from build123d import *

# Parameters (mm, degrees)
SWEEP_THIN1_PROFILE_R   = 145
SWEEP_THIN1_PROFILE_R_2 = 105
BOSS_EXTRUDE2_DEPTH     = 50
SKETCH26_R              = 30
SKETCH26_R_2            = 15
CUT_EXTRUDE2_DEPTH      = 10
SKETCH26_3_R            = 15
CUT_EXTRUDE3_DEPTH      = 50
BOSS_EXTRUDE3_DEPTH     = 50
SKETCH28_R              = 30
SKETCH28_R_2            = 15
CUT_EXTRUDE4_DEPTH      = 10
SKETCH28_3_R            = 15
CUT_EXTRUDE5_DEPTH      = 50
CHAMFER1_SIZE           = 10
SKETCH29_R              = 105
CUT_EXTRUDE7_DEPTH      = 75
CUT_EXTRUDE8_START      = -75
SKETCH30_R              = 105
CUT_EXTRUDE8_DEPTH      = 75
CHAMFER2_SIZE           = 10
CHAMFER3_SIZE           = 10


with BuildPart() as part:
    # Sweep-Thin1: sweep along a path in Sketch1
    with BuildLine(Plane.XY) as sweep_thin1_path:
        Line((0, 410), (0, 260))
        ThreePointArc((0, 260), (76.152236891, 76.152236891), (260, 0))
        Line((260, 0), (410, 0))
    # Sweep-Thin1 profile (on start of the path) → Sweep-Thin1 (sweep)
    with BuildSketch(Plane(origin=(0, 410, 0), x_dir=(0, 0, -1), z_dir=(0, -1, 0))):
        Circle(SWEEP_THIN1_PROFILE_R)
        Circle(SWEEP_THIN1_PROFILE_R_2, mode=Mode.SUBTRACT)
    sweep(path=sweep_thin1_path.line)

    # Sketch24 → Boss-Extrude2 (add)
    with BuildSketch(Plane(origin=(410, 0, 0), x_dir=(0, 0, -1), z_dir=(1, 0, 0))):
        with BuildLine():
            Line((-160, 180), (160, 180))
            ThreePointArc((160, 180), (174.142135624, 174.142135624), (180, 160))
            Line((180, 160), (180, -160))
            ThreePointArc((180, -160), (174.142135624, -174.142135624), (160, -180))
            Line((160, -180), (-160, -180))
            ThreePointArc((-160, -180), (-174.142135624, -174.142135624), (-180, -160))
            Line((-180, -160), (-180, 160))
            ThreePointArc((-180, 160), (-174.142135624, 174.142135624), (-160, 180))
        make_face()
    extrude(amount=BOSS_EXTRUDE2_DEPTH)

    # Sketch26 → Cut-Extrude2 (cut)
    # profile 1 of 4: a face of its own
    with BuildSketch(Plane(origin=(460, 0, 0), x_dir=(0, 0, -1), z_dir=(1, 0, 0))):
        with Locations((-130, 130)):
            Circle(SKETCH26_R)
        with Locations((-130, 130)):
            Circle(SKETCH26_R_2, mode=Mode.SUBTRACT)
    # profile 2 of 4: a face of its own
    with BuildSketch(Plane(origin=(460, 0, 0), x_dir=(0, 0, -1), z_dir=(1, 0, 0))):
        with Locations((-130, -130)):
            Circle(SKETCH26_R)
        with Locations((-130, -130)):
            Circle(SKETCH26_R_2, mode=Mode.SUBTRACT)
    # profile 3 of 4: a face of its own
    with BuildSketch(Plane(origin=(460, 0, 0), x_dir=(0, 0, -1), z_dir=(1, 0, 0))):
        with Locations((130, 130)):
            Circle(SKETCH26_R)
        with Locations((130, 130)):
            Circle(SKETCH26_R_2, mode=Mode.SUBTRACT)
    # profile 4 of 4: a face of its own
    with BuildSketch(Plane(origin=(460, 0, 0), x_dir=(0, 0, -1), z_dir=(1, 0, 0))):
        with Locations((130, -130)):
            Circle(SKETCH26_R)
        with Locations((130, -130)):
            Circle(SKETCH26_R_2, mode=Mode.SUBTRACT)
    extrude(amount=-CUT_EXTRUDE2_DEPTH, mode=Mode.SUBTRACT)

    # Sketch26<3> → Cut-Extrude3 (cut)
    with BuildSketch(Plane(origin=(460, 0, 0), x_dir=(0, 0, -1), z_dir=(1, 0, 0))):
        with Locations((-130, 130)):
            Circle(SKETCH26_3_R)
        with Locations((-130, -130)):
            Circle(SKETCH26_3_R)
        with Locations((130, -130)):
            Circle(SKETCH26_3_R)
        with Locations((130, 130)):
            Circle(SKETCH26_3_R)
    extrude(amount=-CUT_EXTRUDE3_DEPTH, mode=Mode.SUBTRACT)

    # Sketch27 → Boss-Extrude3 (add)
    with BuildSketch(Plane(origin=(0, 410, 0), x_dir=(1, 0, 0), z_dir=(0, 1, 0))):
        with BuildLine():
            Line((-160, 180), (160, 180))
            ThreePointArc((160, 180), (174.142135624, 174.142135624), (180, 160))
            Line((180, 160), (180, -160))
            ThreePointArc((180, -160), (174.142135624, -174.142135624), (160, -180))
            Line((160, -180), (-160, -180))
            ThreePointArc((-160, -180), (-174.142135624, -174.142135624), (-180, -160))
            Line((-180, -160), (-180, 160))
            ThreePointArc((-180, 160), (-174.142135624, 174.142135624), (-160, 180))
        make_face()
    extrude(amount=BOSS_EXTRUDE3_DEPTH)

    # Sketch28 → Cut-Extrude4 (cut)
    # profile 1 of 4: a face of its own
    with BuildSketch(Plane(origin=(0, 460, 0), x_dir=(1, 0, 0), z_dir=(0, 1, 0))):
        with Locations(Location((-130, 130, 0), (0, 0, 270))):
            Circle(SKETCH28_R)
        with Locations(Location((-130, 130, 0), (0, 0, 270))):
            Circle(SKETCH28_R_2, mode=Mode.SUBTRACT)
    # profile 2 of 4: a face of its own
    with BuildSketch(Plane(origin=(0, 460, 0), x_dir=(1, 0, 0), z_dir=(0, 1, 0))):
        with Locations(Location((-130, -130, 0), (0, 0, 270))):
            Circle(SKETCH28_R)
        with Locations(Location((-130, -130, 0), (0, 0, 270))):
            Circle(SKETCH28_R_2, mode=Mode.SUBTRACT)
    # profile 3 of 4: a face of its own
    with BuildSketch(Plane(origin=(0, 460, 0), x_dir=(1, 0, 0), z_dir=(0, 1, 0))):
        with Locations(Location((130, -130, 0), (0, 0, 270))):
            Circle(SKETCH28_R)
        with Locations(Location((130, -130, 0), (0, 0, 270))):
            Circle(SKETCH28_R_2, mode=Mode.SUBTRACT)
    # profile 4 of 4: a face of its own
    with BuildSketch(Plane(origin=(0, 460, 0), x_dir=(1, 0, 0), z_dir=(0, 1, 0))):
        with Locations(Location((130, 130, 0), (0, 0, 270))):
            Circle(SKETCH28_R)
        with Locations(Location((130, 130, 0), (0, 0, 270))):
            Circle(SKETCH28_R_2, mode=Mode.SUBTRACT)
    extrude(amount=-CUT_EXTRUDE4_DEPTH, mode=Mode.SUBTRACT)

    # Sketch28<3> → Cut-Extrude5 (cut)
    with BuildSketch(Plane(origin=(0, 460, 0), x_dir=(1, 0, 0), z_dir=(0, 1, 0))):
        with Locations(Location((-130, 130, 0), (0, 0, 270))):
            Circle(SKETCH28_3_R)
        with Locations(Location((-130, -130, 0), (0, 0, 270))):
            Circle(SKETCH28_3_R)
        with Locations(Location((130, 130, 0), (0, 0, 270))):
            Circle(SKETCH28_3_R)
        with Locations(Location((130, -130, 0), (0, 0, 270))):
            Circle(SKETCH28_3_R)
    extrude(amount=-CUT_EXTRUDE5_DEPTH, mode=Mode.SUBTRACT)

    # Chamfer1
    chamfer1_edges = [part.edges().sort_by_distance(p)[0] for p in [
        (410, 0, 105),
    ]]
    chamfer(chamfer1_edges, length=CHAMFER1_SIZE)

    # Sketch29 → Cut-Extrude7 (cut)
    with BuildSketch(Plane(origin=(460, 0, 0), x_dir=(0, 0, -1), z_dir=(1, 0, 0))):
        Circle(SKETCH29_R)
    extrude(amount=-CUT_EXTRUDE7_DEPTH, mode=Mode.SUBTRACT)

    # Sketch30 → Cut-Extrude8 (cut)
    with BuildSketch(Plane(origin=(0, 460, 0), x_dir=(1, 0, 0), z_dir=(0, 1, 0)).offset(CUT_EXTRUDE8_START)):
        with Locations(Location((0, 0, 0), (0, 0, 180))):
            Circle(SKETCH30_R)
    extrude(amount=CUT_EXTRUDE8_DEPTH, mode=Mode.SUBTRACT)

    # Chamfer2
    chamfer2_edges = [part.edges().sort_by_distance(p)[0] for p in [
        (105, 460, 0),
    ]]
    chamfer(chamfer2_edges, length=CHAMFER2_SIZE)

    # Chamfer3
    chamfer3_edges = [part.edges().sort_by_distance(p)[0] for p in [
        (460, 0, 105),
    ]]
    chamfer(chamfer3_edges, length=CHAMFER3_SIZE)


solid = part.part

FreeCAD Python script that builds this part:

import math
import FreeCAD as App
import Part
import Sketcher
Q = App.Units.Quantity


def edges_at(feature, points):
    """Names of the edges that pass closest to the given points."""
    edges = feature.Shape.Edges
    near = lambda p: min(range(len(edges)), key=lambda i: edges[i].distToShape(Part.Vertex(*p))[0])
    return sorted({f"Edge{near(p) + 1}" for p in points})

doc = App.newDocument("Part")
body = doc.addObject("PartDesign::Body", "Body")

sketch1 = body.newObject("Sketcher::SketchObject", "Sketch")
sketch1.AttachmentSupport = (doc.getObject("XZ_Plane"), [""])
sketch1.MapMode = "FlatFace"
sketch1.AttachmentOffset = App.Placement(App.Vector(0, 0, -410), App.Rotation())
sketch1.addGeometry([
    Part.Circle(App.Vector(0, 0, 0), App.Vector(0, 0, 1), 145),
    Part.Circle(App.Vector(0, 0, 0), App.Vector(0, 0, 1), 105),
], False)
sketch1.addConstraint([
    Sketcher.Constraint("Coincident", 0, 3, -1, 1),
    Sketcher.Constraint("Coincident", 1, 3, -1, 1),
    Sketcher.Constraint("Diameter", 0, Q("290 mm")),
    Sketcher.Constraint("Diameter", 1, Q("210 mm")),
])

sketch2 = body.newObject("Sketcher::SketchObject", "Sketch001")
sketch2.AttachmentSupport = (doc.getObject("XY_Plane"), [""])
sketch2.MapMode = "FlatFace"
sketch2.addGeometry([
    Part.LineSegment(App.Vector(0, 410, 0), App.Vector(0, 260, 0)),
    Part.ArcOfCircle(Part.Circle(App.Vector(260, 260, 0), App.Vector(0, 0, 1), 260), math.radians(180), math.radians(270)),
    Part.LineSegment(App.Vector(260, 0, 0), App.Vector(410, 0, 0)),
], False)
sketch2.addConstraint([
    Sketcher.Constraint("Tangent", 0, 2, 1, 1),
    Sketcher.Constraint("Tangent", 1, 2, 2, 1),
    Sketcher.Constraint("Vertical", 0),
    Sketcher.Constraint("Horizontal", 2),
    Sketcher.Constraint("PointOnObject", 0, 1, -2),
    Sketcher.Constraint("PointOnObject", 1, 2, -1),
    Sketcher.Constraint("Equal", 2, 0),
    Sketcher.Constraint("Radius", 1, Q("260 mm")),
    Sketcher.Constraint("DistanceX", 2, 1, 2, 2, Q("150 mm")),
])
doc.recompute()

additivepipe = body.newObject("PartDesign::AdditivePipe", "AdditivePipe")
additivepipe.Profile = sketch1
additivepipe.Spine = (sketch2, ["Edge1", "Edge2", "Edge3"])

sketch3 = body.newObject("Sketcher::SketchObject", "Sketch002")
sketch3.AttachmentSupport = (doc.getObject("YZ_Plane"), [""])
sketch3.MapMode = "FlatFace"
sketch3.AttachmentOffset = App.Placement(App.Vector(0, 0, 410), App.Rotation())
sketch3.addGeometry([
    Part.LineSegment(App.Vector(180, -160, 0), App.Vector(180, 160, 0)),
    Part.ArcOfCircle(Part.Circle(App.Vector(160, 160, 0), App.Vector(0, 0, 1), 20), math.radians(0), math.radians(90)),
    Part.LineSegment(App.Vector(160, 180, 0), App.Vector(-160, 180, 0)),
    Part.ArcOfCircle(Part.Circle(App.Vector(-160, 160, 0), App.Vector(0, 0, 1), 20), math.radians(90), math.radians(180)),
    Part.LineSegment(App.Vector(-180, 160, 0), App.Vector(-180, -160, 0)),
    Part.ArcOfCircle(Part.Circle(App.Vector(-160, -160, 0), App.Vector(0, 0, 1), 20), math.radians(180), math.radians(270)),
    Part.LineSegment(App.Vector(-160, -180, 0), App.Vector(160, -180, 0)),
    Part.ArcOfCircle(Part.Circle(App.Vector(160, -160, 0), App.Vector(0, 0, 1), 20), math.radians(-90), math.radians(0)),
], False)
sketch3.addConstraint([
    Sketcher.Constraint("Tangent", 0, 2, 1, 1),
    Sketcher.Constraint("Tangent", 1, 2, 2, 1),
    Sketcher.Constraint("Tangent", 2, 2, 3, 1),
    Sketcher.Constraint("Tangent", 3, 2, 4, 1),
    Sketcher.Constraint("Tangent", 4, 2, 5, 1),
    Sketcher.Constraint("Tangent", 5, 2, 6, 1),
    Sketcher.Constraint("Tangent", 6, 2, 7, 1),
    Sketcher.Constraint("Tangent", 7, 2, 0, 1),
    Sketcher.Constraint("Vertical", 0),
    Sketcher.Constraint("Horizontal", 2),
    Sketcher.Constraint("Vertical", 4),
    Sketcher.Constraint("Horizontal", 6),
    Sketcher.Constraint("Equal", 1, 3),
    Sketcher.Constraint("Equal", 3, 5),
    Sketcher.Constraint("Equal", 5, 7),
    Sketcher.Constraint("Symmetric", 1, 3, 5, 3, -1, 1),
    Sketcher.Constraint("Equal", 6, 0),
    Sketcher.Constraint("Radius", 1, Q("20 mm")),
    Sketcher.Constraint("DistanceX", 2, 2, 2, 1, Q("320 mm")),
])
pad1 = body.newObject("PartDesign::Pad", "Pad")
pad1.Profile = sketch3
pad1.Length = 50

sketch4 = body.newObject("Sketcher::SketchObject", "Sketch003")
sketch4.AttachmentSupport = (doc.getObject("YZ_Plane"), [""])
sketch4.MapMode = "FlatFace"
sketch4.AttachmentOffset = App.Placement(App.Vector(0, 0, 460), App.Rotation())
sketch4.addGeometry([
    Part.Circle(App.Vector(130, 130, 0), App.Vector(0, 0, 1), 30),
    Part.Circle(App.Vector(130, 130, 0), App.Vector(0, 0, 1), 15),
    Part.Circle(App.Vector(-130, 130, 0), App.Vector(0, 0, 1), 30),
    Part.Circle(App.Vector(-130, 130, 0), App.Vector(0, 0, 1), 15),
    Part.Circle(App.Vector(130, -130, 0), App.Vector(0, 0, 1), 30),
    Part.Circle(App.Vector(130, -130, 0), App.Vector(0, 0, 1), 15),
    Part.Circle(App.Vector(-130, -130, 0), App.Vector(0, 0, 1), 30),
    Part.Circle(App.Vector(-130, -130, 0), App.Vector(0, 0, 1), 15),
], False)
sketch4.addConstraint([
    Sketcher.Constraint("Coincident", 1, 3, 0, 3),
    Sketcher.Constraint("Coincident", 3, 3, 2, 3),
    Sketcher.Constraint("Coincident", 5, 3, 4, 3),
    Sketcher.Constraint("Coincident", 7, 3, 6, 3),
    Sketcher.Constraint("Equal", 0, 2),
    Sketcher.Constraint("Equal", 1, 3),
    Sketcher.Constraint("Equal", 2, 4),
    Sketcher.Constraint("Equal", 3, 5),
    Sketcher.Constraint("Equal", 4, 6),
    Sketcher.Constraint("Equal", 5, 7),
    Sketcher.Constraint("Symmetric", 2, 3, 4, 3, -1, 1),
    Sketcher.Constraint("Symmetric", 0, 3, 6, 3, -1, 1),
    Sketcher.Constraint("Symmetric", 0, 3, 2, 3, -2),
    Sketcher.Constraint("Diameter", 0, Q("60 mm")),
    Sketcher.Constraint("Diameter", 1, Q("30 mm")),
    Sketcher.Constraint("DistanceX", -1, 1, 0, 3, Q("130 mm")),
    Sketcher.Constraint("DistanceY", -1, 1, 0, 3, Q("130 mm")),
])
pocket1 = body.newObject("PartDesign::Pocket", "Pocket")
pocket1.Profile = sketch4
pocket1.Length = 10

sketch5 = body.newObject("Sketcher::SketchObject", "Sketch004")
sketch5.AttachmentSupport = (doc.getObject("YZ_Plane"), [""])
sketch5.MapMode = "FlatFace"
sketch5.AttachmentOffset = App.Placement(App.Vector(0, 0, 460), App.Rotation())
sketch5.addGeometry([
    Part.Circle(App.Vector(130, 130, 0), App.Vector(0, 0, 1), 15),
    Part.Circle(App.Vector(-130, 130, 0), App.Vector(0, 0, 1), 15),
    Part.Circle(App.Vector(-130, -130, 0), App.Vector(0, 0, 1), 15),
    Part.Circle(App.Vector(130, -130, 0), App.Vector(0, 0, 1), 15),
], False)
sketch5.addConstraint([
    Sketcher.Constraint("Equal", 0, 1),
    Sketcher.Constraint("Equal", 1, 2),
    Sketcher.Constraint("Equal", 2, 3),
    Sketcher.Constraint("Symmetric", 0, 3, 2, 3, -1, 1),
    Sketcher.Constraint("Symmetric", 1, 3, 3, 3, -1, 1),
    Sketcher.Constraint("Symmetric", 0, 3, 1, 3, -2),
    Sketcher.Constraint("Diameter", 0, Q("30 mm")),
    Sketcher.Constraint("DistanceX", -1, 1, 0, 3, Q("130 mm")),
    Sketcher.Constraint("DistanceY", -1, 1, 0, 3, Q("130 mm")),
])
pocket2 = body.newObject("PartDesign::Pocket", "Pocket001")
pocket2.Profile = sketch5
pocket2.Length = 50

sketch6 = body.newObject("Sketcher::SketchObject", "Sketch005")
sketch6.AttachmentSupport = (doc.getObject("XZ_Plane"), [""])
sketch6.MapMode = "FlatFace"
sketch6.AttachmentOffset = App.Placement(App.Vector(0, 0, -410), App.Rotation())
sketch6.addGeometry([
    Part.LineSegment(App.Vector(160, -180, 0), App.Vector(-160, -180, 0)),
    Part.ArcOfCircle(Part.Circle(App.Vector(-160, -160, 0), App.Vector(0, 0, 1), 20), math.radians(180), math.radians(270)),
    Part.LineSegment(App.Vector(-180, -160, 0), App.Vector(-180, 160, 0)),
    Part.ArcOfCircle(Part.Circle(App.Vector(-160, 160, 0), App.Vector(0, 0, 1), 20), math.radians(90), math.radians(180)),
    Part.LineSegment(App.Vector(-160, 180, 0), App.Vector(160, 180, 0)),
    Part.ArcOfCircle(Part.Circle(App.Vector(160, 160, 0), App.Vector(0, 0, 1), 20), math.radians(0), math.radians(90)),
    Part.LineSegment(App.Vector(180, 160, 0), App.Vector(180, -160, 0)),
    Part.ArcOfCircle(Part.Circle(App.Vector(160, -160, 0), App.Vector(0, 0, 1), 20), math.radians(-90), math.radians(0)),
], False)
sketch6.addConstraint([
    Sketcher.Constraint("Tangent", 0, 2, 1, 2),
    Sketcher.Constraint("Tangent", 1, 1, 2, 1),
    Sketcher.Constraint("Tangent", 2, 2, 3, 2),
    Sketcher.Constraint("Tangent", 3, 1, 4, 1),
    Sketcher.Constraint("Tangent", 4, 2, 5, 2),
    Sketcher.Constraint("Tangent", 5, 1, 6, 1),
    Sketcher.Constraint("Tangent", 6, 2, 7, 2),
    Sketcher.Constraint("Tangent", 7, 1, 0, 1),
    Sketcher.Constraint("Horizontal", 0),
    Sketcher.Constraint("Vertical", 2),
    Sketcher.Constraint("Horizontal", 4),
    Sketcher.Constraint("Vertical", 6),
    Sketcher.Constraint("Equal", 1, 3),
    Sketcher.Constraint("Equal", 3, 5),
    Sketcher.Constraint("Equal", 5, 7),
    Sketcher.Constraint("Symmetric", 1, 3, 5, 3, -1, 1),
    Sketcher.Constraint("Equal", 4, 2),
    Sketcher.Constraint("Radius", 1, Q("20 mm")),
    Sketcher.Constraint("DistanceX", 0, 2, 0, 1, Q("320 mm")),
])
pad2 = body.newObject("PartDesign::Pad", "Pad001")
pad2.Profile = sketch6
pad2.Length = 50
pad2.Reversed = True

sketch7 = body.newObject("Sketcher::SketchObject", "Sketch006")
sketch7.AttachmentSupport = (doc.getObject("XZ_Plane"), [""])
sketch7.MapMode = "FlatFace"
sketch7.AttachmentOffset = App.Placement(App.Vector(0, 0, -460), App.Rotation())
sketch7.addGeometry([
    Part.Circle(App.Vector(-130, -130, 0), App.Vector(0, 0, 1), 30),
    Part.Circle(App.Vector(-130, -130, 0), App.Vector(0, 0, 1), 15),
    Part.Circle(App.Vector(-130, 130, 0), App.Vector(0, 0, 1), 30),
    Part.Circle(App.Vector(-130, 130, 0), App.Vector(0, 0, 1), 15),
    Part.Circle(App.Vector(130, 130, 0), App.Vector(0, 0, 1), 30),
    Part.Circle(App.Vector(130, 130, 0), App.Vector(0, 0, 1), 15),
    Part.Circle(App.Vector(130, -130, 0), App.Vector(0, 0, 1), 30),
    Part.Circle(App.Vector(130, -130, 0), App.Vector(0, 0, 1), 15),
], False)
sketch7.addConstraint([
    Sketcher.Constraint("Coincident", 1, 3, 0, 3),
    Sketcher.Constraint("Coincident", 3, 3, 2, 3),
    Sketcher.Constraint("Coincident", 5, 3, 4, 3),
    Sketcher.Constraint("Coincident", 7, 3, 6, 3),
    Sketcher.Constraint("Equal", 0, 2),
    Sketcher.Constraint("Equal", 1, 3),
    Sketcher.Constraint("Equal", 2, 4),
    Sketcher.Constraint("Equal", 3, 5),
    Sketcher.Constraint("Equal", 4, 6),
    Sketcher.Constraint("Equal", 5, 7),
    Sketcher.Constraint("Symmetric", 0, 3, 4, 3, -1, 1),
    Sketcher.Constraint("Symmetric", 2, 3, 6, 3, -1, 1),
    Sketcher.Constraint("Symmetric", 2, 3, 4, 3, -2),
    Sketcher.Constraint("Diameter", 0, Q("60 mm")),
    Sketcher.Constraint("Diameter", 1, Q("30 mm")),
    Sketcher.Constraint("DistanceX", 0, 3, -1, 1, Q("130 mm")),
    Sketcher.Constraint("DistanceY", 0, 3, -1, 1, Q("130 mm")),
])
pocket3 = body.newObject("PartDesign::Pocket", "Pocket002")
pocket3.Profile = sketch7
pocket3.Length = 10
pocket3.Reversed = True

sketch8 = body.newObject("Sketcher::SketchObject", "Sketch007")
sketch8.AttachmentSupport = (doc.getObject("XZ_Plane"), [""])
sketch8.MapMode = "FlatFace"
sketch8.AttachmentOffset = App.Placement(App.Vector(0, 0, -460), App.Rotation())
sketch8.addGeometry([
    Part.Circle(App.Vector(-130, -130, 0), App.Vector(0, 0, 1), 15),
    Part.Circle(App.Vector(-130, 130, 0), App.Vector(0, 0, 1), 15),
    Part.Circle(App.Vector(130, -130, 0), App.Vector(0, 0, 1), 15),
    Part.Circle(App.Vector(130, 130, 0), App.Vector(0, 0, 1), 15),
], False)
sketch8.addConstraint([
    Sketcher.Constraint("Equal", 0, 1),
    Sketcher.Constraint("Equal", 1, 2),
    Sketcher.Constraint("Equal", 2, 3),
    Sketcher.Constraint("Symmetric", 1, 3, 2, 3, -1, 1),
    Sketcher.Constraint("Symmetric", 0, 3, 3, 3, -1, 1),
    Sketcher.Constraint("Symmetric", 0, 3, 2, 3, -2),
    Sketcher.Constraint("Diameter", 0, Q("30 mm")),
    Sketcher.Constraint("DistanceX", 0, 3, -1, 1, Q("130 mm")),
    Sketcher.Constraint("DistanceY", 0, 3, -1, 1, Q("130 mm")),
])
pocket4 = body.newObject("PartDesign::Pocket", "Pocket003")
pocket4.Profile = sketch8
pocket4.Length = 50
pocket4.Reversed = True
doc.recompute()

chamfer = body.newObject("PartDesign::Chamfer", "Chamfer")
chamfer.Base = (pocket4, edges_at(pocket4, [(410, 0, 105)]))
chamfer.Size = 10

sketch9 = body.newObject("Sketcher::SketchObject", "Sketch008")
sketch9.AttachmentSupport = (doc.getObject("YZ_Plane"), [""])
sketch9.MapMode = "FlatFace"
sketch9.AttachmentOffset = App.Placement(App.Vector(0, 0, 460), App.Rotation())
sketch9.addGeometry(Part.Circle(App.Vector(0, 0, 0), App.Vector(0, 0, 1), 105), False)
sketch9.addConstraint([
    Sketcher.Constraint("Coincident", 0, 3, -1, 1),
    Sketcher.Constraint("Diameter", 0, Q("210 mm")),
])
pocket5 = body.newObject("PartDesign::Pocket", "Pocket004")
pocket5.Profile = sketch9
pocket5.Length = 75

sketch10 = body.newObject("Sketcher::SketchObject", "Sketch009")
sketch10.AttachmentSupport = (doc.getObject("XZ_Plane"), [""])
sketch10.MapMode = "FlatFace"
sketch10.AttachmentOffset = App.Placement(App.Vector(0, 0, -385), App.Rotation())
sketch10.addGeometry(Part.Circle(App.Vector(0, 0, 0), App.Vector(0, 0, 1), 105), False)
sketch10.addConstraint([
    Sketcher.Constraint("Coincident", 0, 3, -1, 1),
    Sketcher.Constraint("Diameter", 0, Q("210 mm")),
])
pocket6 = body.newObject("PartDesign::Pocket", "Pocket005")
pocket6.Profile = sketch10
pocket6.Length = 75
doc.recompute()

chamfer2 = body.newObject("PartDesign::Chamfer", "Chamfer001")
chamfer2.Base = (pocket6, edges_at(pocket6, [(105, 460, 0)]))
chamfer2.Size = 10
doc.recompute()

chamfer3 = body.newObject("PartDesign::Chamfer", "Chamfer002")
chamfer3.Base = (chamfer2, edges_at(chamfer2, [(460, 0, 105)]))
chamfer3.Size = 10

doc.recompute()
